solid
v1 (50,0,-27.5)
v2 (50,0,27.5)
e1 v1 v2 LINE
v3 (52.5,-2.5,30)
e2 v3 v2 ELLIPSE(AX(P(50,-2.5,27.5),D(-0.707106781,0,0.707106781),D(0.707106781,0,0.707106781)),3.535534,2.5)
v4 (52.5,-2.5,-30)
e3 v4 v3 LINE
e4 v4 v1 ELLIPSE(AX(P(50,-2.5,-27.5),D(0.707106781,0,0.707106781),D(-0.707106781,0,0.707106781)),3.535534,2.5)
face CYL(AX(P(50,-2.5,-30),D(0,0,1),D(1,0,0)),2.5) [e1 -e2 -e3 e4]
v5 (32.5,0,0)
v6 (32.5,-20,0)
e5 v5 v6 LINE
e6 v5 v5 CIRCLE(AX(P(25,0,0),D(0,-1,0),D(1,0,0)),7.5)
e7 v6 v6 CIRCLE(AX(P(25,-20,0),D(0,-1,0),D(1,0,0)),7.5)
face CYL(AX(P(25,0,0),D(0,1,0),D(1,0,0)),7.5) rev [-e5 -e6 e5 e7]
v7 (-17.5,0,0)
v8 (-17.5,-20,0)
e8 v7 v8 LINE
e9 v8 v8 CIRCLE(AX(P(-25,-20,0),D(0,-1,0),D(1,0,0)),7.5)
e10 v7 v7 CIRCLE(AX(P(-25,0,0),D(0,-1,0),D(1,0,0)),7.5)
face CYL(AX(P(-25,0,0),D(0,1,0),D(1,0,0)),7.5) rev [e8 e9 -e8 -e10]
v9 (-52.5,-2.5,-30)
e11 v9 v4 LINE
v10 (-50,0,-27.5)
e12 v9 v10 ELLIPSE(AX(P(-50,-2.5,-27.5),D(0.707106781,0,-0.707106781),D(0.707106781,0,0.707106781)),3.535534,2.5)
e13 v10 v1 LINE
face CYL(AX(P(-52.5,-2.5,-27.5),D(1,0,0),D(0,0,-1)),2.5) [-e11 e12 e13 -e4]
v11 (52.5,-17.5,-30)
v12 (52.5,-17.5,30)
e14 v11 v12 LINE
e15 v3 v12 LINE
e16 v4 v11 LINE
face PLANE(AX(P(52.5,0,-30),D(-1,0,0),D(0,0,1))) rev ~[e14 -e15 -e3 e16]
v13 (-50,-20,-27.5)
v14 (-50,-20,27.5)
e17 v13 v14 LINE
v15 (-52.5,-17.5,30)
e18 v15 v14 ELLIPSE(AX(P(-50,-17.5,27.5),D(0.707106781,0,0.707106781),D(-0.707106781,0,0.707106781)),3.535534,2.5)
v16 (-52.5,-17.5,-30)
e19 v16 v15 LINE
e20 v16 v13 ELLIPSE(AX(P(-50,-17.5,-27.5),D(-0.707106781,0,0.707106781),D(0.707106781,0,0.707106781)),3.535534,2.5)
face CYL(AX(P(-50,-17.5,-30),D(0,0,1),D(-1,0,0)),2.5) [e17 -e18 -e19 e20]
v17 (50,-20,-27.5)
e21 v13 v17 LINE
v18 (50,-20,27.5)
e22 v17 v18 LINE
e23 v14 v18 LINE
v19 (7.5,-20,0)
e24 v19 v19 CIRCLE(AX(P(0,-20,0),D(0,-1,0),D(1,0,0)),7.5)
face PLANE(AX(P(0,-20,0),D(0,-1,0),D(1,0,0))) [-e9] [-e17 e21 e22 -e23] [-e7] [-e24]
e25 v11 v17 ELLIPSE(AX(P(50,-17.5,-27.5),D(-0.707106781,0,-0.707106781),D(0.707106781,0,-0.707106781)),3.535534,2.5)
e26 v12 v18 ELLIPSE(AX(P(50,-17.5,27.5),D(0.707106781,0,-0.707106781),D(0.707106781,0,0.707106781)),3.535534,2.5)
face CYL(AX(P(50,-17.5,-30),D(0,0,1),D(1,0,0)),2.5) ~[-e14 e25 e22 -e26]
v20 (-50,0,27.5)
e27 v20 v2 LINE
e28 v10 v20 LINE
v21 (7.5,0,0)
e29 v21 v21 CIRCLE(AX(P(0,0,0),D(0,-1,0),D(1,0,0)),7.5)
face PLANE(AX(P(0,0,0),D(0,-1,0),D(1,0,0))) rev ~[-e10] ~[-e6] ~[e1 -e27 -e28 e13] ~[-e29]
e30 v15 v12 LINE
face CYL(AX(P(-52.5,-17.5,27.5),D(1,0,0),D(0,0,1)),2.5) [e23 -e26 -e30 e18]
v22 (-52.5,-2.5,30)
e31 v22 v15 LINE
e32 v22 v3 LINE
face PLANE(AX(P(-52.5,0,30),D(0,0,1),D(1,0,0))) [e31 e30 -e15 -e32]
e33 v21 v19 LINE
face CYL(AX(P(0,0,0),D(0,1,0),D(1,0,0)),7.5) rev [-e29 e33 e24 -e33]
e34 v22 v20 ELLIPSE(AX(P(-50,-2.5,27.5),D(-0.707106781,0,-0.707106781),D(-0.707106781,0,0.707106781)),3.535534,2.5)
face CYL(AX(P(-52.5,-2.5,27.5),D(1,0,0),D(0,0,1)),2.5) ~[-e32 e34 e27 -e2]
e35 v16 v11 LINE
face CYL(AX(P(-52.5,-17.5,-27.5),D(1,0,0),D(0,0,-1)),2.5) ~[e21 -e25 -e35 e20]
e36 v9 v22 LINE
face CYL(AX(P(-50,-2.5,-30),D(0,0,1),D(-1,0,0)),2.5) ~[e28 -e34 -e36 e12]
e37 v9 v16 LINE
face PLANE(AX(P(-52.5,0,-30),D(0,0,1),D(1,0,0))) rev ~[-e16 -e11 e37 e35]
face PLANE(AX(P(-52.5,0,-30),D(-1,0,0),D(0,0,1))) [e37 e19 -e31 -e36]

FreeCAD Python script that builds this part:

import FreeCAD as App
import Part
import Sketcher
from FreeCAD import Vector


def edges_at(feature, points):
    """Names of the edges that pass closest to the given points."""
    edges = feature.Shape.Edges
    near = lambda p: min(range(len(edges)), key=lambda i: edges[i].distToShape(Part.Vertex(*p))[0])
    return sorted({f"Edge{near(p) + 1}" for p in points})

doc = App.newDocument("Part")
body = doc.addObject("PartDesign::Body", "Body")

sketch1 = body.newObject("Sketcher::SketchObject", "Sketch")
sketch1.AttachmentSupport = (doc.getObject("XZ_Plane"), [""])
sketch1.MapMode = "FlatFace"
sketch1.addGeometry(Part.LineSegment(Vector(-52, 30, 0), Vector(-52, -30, 0)), False)
sketch1.addGeometry(Part.LineSegment(Vector(-52, -30, 0), Vector(52, -30, 0)), False)
sketch1.addGeometry(Part.LineSegment(Vector(52, -30, 0), Vector(52, 30, 0)), False)
sketch1.addGeometry(Part.LineSegment(Vector(52, 30, 0), Vector(-52, 30, 0)), False)
sketch1.addGeometry(Part.Circle(Vector(-25, 0, 0), Vector(0, 0, 1), 8), False)
sketch1.addGeometry(Part.Circle(Vector(0, 0, 0), Vector(0, 0, 1), 8), False)
sketch1.addGeometry(Part.Circle(Vector(25, 0, 0), Vector(0, 0, 1), 8), False)
sketch1.addConstraint(Sketcher.Constraint("Coincident", 0, 2, 1, 1))
sketch1.addConstraint(Sketcher.Constraint("Coincident", 1, 2, 2, 1))
sketch1.addConstraint(Sketcher.Constraint("Coincident", 2, 2, 3, 1))
sketch1.addConstraint(Sketcher.Constraint("Coincident", 3, 2, 0, 1))
sketch1.addConstraint(Sketcher.Constraint("Vertical", 0))
sketch1.addConstraint(Sketcher.Constraint("Horizontal", 1))
sketch1.addConstraint(Sketcher.Constraint("Vertical", 2))
sketch1.addConstraint(Sketcher.Constraint("Horizontal", 3))
sketch1.addConstraint(Sketcher.Constraint("Coincident", 5, 3, -1, 1))
sketch1.addConstraint(Sketcher.Constraint("Equal", 4, 5))
sketch1.addConstraint(Sketcher.Constraint("Equal", 5, 6))
sketch1.addConstraint(Sketcher.Constraint("Symmetric", 4, 3, 6, 3, -1, 1))
sketch1.addConstraint(Sketcher.Constraint("Symmetric", 0, 2, 2, 2, -1, 1))
sketch1.addConstraint(Sketcher.Constraint("PointOnObject", 4, 3, -1))
sketch1.addConstraint(Sketcher.Constraint("Diameter", 4, 15.0))
sketch1.addConstraint(Sketcher.Constraint("DistanceX", 1, 1, 1, 2, 105.0))
sketch1.addConstraint(Sketcher.Constraint("DistanceY", 0, 2, 0, 1, 60.0))
sketch1.addConstraint(Sketcher.Constraint("DistanceX", 4, 3, -1, 1, 25.0))
pad1 = body.newObject("PartDesign::Pad", "Pad")
pad1.Profile = sketch1
pad1.Length = 20
doc.recompute()

fillet = body.newObject("PartDesign::Fillet", "Fillet")
fillet.Base = (pad1, edges_at(pad1, [
    (0, -20, -30),
    (-52.5, -20, 0),
    (0, -20, 30),
    (52.5, 0, 0),
    (0, 0, -30),
    (-52.5, 0, 0),
    (0, 0, 30),
    (52.5, -20, 0),
]))
fillet.Radius = 2.5

doc.recompute()
